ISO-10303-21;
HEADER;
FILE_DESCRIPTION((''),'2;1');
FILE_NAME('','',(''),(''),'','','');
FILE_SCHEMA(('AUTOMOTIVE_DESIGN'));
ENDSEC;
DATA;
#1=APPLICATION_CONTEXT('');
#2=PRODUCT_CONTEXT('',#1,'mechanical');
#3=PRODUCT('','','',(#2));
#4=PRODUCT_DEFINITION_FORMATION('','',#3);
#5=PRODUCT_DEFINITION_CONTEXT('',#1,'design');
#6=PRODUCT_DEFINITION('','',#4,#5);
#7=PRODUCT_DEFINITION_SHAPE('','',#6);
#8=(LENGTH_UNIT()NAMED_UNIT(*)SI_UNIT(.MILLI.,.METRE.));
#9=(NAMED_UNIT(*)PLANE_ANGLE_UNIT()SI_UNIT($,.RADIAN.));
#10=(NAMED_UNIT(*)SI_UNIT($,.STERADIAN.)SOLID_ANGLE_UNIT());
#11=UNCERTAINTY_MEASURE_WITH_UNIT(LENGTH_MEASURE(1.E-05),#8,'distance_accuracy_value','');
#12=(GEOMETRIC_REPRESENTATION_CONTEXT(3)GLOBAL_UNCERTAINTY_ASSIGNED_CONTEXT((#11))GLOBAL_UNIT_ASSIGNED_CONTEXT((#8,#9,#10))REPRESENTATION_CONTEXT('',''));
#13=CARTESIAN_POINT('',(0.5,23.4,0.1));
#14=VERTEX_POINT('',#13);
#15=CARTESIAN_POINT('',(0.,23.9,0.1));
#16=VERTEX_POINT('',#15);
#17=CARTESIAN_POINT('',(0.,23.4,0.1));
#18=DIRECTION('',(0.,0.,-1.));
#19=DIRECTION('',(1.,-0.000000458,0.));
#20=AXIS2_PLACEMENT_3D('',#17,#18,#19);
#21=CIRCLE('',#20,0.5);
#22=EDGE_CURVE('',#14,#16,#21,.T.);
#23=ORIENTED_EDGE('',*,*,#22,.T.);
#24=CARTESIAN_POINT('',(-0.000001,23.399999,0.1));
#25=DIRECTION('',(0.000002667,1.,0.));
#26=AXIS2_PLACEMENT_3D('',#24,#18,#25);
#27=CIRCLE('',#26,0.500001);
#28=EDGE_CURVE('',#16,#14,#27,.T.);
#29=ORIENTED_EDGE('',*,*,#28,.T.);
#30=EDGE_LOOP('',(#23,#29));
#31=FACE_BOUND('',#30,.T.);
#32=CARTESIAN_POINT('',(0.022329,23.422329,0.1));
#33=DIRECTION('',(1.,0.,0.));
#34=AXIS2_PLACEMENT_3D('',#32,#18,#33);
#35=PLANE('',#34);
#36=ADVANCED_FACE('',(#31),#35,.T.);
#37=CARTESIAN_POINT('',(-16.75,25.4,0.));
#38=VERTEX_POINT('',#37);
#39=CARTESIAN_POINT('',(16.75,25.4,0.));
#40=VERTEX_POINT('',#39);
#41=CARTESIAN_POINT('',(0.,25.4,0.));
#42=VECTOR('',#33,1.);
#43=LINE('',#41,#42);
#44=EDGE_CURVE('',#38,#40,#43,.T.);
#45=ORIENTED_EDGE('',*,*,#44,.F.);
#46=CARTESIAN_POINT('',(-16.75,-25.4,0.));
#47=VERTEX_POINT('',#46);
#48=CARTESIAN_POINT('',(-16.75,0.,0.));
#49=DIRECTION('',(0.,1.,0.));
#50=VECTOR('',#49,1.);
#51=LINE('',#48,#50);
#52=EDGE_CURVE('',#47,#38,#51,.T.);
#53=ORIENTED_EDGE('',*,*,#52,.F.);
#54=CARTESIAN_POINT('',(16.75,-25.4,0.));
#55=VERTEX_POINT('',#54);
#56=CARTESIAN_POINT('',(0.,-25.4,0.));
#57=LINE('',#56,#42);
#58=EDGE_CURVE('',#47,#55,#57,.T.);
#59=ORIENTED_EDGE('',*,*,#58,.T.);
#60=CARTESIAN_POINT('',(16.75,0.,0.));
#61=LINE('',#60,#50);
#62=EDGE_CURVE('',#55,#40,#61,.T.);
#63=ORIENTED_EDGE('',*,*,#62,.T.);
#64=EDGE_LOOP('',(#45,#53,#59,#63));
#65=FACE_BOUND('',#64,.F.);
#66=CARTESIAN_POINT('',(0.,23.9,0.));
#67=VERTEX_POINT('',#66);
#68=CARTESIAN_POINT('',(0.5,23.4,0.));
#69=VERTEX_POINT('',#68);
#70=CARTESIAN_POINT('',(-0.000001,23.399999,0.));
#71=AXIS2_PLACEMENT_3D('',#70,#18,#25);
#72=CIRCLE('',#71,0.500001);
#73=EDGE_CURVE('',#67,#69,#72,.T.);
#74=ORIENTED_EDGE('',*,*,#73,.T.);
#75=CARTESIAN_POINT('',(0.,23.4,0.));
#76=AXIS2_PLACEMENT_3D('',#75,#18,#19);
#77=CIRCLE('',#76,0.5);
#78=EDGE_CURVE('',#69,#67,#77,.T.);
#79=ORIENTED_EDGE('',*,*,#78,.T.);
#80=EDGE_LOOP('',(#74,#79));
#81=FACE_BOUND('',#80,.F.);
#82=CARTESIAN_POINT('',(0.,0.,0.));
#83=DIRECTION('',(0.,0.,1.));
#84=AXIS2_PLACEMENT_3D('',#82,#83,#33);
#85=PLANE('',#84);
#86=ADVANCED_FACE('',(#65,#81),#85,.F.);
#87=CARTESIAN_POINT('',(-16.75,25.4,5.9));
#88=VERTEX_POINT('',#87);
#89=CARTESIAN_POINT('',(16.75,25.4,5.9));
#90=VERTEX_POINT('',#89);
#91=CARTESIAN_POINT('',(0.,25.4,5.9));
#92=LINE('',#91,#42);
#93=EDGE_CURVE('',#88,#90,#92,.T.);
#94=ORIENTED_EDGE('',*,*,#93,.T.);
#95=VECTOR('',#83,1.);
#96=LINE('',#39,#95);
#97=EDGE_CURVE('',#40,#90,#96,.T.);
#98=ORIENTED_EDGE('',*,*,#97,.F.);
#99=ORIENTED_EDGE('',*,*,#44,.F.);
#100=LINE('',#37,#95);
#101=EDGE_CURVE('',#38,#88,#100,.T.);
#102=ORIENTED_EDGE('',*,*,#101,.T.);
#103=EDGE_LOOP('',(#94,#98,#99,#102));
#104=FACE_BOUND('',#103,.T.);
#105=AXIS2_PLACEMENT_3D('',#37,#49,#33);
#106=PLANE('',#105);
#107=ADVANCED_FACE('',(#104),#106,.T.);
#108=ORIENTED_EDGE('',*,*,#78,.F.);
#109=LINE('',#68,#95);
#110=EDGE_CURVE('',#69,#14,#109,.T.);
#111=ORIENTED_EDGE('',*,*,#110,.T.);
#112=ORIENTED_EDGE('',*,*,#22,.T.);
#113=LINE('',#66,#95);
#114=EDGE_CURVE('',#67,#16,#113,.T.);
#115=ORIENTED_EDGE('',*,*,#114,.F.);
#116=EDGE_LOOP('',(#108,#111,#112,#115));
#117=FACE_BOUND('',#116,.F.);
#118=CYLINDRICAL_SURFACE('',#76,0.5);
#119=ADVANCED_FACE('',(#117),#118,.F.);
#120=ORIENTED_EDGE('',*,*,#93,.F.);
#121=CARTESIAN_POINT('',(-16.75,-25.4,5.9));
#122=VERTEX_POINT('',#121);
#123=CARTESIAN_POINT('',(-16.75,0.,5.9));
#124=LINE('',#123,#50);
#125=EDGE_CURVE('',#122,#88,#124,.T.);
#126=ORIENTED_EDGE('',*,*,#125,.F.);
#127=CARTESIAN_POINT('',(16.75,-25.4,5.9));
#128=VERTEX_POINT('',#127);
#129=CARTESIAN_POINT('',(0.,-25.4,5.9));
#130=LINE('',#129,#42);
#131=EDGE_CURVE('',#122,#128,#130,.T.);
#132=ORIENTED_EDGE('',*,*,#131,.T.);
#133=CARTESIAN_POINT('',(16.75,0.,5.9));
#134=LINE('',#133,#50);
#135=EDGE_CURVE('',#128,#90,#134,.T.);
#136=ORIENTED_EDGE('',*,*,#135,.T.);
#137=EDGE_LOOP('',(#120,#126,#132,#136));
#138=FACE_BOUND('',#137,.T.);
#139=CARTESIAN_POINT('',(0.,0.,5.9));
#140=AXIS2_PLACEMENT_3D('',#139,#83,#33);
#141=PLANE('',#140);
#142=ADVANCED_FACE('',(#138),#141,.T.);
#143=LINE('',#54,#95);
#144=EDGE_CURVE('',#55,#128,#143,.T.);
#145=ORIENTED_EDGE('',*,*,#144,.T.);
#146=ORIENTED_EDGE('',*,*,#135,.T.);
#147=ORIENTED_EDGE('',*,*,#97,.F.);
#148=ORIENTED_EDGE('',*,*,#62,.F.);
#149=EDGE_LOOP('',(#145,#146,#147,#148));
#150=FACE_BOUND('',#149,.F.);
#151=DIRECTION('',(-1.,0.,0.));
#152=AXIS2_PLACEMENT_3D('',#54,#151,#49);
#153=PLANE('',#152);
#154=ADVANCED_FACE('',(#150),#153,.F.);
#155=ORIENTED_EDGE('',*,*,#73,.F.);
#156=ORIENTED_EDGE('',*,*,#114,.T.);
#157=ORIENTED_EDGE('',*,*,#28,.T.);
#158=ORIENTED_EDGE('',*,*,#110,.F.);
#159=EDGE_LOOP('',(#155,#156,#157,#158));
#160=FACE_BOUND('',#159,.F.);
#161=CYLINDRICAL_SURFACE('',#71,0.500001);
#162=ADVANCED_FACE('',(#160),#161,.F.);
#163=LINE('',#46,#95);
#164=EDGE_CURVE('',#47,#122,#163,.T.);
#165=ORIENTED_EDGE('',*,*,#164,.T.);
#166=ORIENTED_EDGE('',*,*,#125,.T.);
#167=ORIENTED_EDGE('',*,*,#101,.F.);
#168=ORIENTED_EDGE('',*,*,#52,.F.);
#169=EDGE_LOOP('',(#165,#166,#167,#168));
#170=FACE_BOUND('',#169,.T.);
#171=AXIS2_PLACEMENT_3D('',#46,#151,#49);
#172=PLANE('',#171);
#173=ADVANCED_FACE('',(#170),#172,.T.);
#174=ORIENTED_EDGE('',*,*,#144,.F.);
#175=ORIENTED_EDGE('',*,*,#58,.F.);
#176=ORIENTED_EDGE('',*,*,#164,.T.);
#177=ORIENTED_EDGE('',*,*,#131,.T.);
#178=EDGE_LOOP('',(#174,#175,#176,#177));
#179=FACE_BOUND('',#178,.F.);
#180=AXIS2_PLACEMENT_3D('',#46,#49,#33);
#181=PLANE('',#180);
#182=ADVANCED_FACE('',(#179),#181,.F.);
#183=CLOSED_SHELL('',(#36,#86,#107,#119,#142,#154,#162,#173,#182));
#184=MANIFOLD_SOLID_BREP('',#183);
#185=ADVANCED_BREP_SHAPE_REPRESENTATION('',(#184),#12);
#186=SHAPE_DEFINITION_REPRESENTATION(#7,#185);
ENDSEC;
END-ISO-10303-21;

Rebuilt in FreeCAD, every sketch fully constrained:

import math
import FreeCAD as App
import Part
import Sketcher
Q = App.Units.Quantity

doc = App.newDocument("Part")
params = doc.addObject("Spreadsheet::Sheet", "Params")
for row, (alias, value) in enumerate([
    ("sketch1_width", "33.5 mm"),
    ("sketch1_height", "50.8 mm"),
    ("pad1_length", "5.9 mm"),
    ("sketch2_radius", "0.5 mm"),
    ("pocket1_length", "0.1 mm"),
], start=1):
    params.set(f"A{row}", alias)
    params.set(f"B{row}", "=" + value)
    params.setAlias(f"B{row}", alias)

body = doc.addObject("PartDesign::Body", "Body")

sketch1 = body.newObject("Sketcher::SketchObject", "Sketch")
sketch1.AttachmentSupport = (doc.getObject("XY_Plane"), [""])
sketch1.MapMode = "FlatFace"
sketch1.addGeometry([
    Part.LineSegment(App.Vector(-17, 25, 0), App.Vector(-17, -25, 0)),
    Part.LineSegment(App.Vector(-17, -25, 0), App.Vector(17, -25, 0)),
    Part.LineSegment(App.Vector(17, -25, 0), App.Vector(17, 25, 0)),
    Part.LineSegment(App.Vector(17, 25, 0), App.Vector(-17, 25, 0)),
], False)
sketch1.addConstraint([
    Sketcher.Constraint("Coincident", 0, 2, 1, 1),
    Sketcher.Constraint("Coincident", 1, 2, 2, 1),
    Sketcher.Constraint("Coincident", 2, 2, 3, 1),
    Sketcher.Constraint("Coincident", 3, 2, 0, 1),
    Sketcher.Constraint("Vertical", 0),
    Sketcher.Constraint("Horizontal", 1),
    Sketcher.Constraint("Vertical", 2),
    Sketcher.Constraint("Horizontal", 3),
    Sketcher.Constraint("Symmetric", 0, 2, 2, 2, -1, 1),
    Sketcher.Constraint("DistanceX", 1, 1, 1, 2, Q("33.5 mm")),
    Sketcher.Constraint("DistanceY", 0, 2, 0, 1, Q("50.8 mm")),
])
sketch1.setExpression("Constraints[9]", "Params.sketch1_width")
sketch1.setExpression("Constraints[10]", "Params.sketch1_height")
pad1 = body.newObject("PartDesign::Pad", "Pad")
pad1.Profile = sketch1
pad1.setExpression("Length", "Params.pad1_length")

sketch2 = body.newObject("Sketcher::SketchObject", "Sketch001")
sketch2.AttachmentSupport = (doc.getObject("XY_Plane"), [""])
sketch2.MapMode = "FlatFace"
sketch2.addGeometry([
    Part.ArcOfCircle(Part.Circle(App.Vector(0, 23.4, 0), App.Vector(0, 0, 1), 0.5), math.radians(90), math.radians(360)),
    Part.ArcOfCircle(Part.Circle(App.Vector(0, 23.4, 0), App.Vector(0, 0, 1), 0.5), math.radians(0), math.radians(90)),
], False)
sketch2.addConstraint([
    Sketcher.Constraint("Coincident", 0, 1, 1, 2),
    Sketcher.Constraint("Coincident", 1, 1, 0, 2),
    Sketcher.Constraint("Equal", 0, 1),
    Sketcher.Constraint("PointOnObject", 0, 3, -2),
    Sketcher.Constraint("PointOnObject", 0, 1, -2),
    Sketcher.Constraint("Horizontal", 0, 3, 1, 1),
    Sketcher.Constraint("Radius", 0, Q("0.5 mm")),
    Sketcher.Constraint("DistanceY", -1, 1, 0, 3, Q("23.4 mm")),
])
sketch2.setExpression("Constraints[6]", "Params.sketch2_radius")
pocket1 = body.newObject("PartDesign::Pocket", "Pocket")
pocket1.Profile = sketch2
pocket1.setExpression("Length", "Params.pocket1_length")
pocket1.Reversed = True

doc.recompute()
